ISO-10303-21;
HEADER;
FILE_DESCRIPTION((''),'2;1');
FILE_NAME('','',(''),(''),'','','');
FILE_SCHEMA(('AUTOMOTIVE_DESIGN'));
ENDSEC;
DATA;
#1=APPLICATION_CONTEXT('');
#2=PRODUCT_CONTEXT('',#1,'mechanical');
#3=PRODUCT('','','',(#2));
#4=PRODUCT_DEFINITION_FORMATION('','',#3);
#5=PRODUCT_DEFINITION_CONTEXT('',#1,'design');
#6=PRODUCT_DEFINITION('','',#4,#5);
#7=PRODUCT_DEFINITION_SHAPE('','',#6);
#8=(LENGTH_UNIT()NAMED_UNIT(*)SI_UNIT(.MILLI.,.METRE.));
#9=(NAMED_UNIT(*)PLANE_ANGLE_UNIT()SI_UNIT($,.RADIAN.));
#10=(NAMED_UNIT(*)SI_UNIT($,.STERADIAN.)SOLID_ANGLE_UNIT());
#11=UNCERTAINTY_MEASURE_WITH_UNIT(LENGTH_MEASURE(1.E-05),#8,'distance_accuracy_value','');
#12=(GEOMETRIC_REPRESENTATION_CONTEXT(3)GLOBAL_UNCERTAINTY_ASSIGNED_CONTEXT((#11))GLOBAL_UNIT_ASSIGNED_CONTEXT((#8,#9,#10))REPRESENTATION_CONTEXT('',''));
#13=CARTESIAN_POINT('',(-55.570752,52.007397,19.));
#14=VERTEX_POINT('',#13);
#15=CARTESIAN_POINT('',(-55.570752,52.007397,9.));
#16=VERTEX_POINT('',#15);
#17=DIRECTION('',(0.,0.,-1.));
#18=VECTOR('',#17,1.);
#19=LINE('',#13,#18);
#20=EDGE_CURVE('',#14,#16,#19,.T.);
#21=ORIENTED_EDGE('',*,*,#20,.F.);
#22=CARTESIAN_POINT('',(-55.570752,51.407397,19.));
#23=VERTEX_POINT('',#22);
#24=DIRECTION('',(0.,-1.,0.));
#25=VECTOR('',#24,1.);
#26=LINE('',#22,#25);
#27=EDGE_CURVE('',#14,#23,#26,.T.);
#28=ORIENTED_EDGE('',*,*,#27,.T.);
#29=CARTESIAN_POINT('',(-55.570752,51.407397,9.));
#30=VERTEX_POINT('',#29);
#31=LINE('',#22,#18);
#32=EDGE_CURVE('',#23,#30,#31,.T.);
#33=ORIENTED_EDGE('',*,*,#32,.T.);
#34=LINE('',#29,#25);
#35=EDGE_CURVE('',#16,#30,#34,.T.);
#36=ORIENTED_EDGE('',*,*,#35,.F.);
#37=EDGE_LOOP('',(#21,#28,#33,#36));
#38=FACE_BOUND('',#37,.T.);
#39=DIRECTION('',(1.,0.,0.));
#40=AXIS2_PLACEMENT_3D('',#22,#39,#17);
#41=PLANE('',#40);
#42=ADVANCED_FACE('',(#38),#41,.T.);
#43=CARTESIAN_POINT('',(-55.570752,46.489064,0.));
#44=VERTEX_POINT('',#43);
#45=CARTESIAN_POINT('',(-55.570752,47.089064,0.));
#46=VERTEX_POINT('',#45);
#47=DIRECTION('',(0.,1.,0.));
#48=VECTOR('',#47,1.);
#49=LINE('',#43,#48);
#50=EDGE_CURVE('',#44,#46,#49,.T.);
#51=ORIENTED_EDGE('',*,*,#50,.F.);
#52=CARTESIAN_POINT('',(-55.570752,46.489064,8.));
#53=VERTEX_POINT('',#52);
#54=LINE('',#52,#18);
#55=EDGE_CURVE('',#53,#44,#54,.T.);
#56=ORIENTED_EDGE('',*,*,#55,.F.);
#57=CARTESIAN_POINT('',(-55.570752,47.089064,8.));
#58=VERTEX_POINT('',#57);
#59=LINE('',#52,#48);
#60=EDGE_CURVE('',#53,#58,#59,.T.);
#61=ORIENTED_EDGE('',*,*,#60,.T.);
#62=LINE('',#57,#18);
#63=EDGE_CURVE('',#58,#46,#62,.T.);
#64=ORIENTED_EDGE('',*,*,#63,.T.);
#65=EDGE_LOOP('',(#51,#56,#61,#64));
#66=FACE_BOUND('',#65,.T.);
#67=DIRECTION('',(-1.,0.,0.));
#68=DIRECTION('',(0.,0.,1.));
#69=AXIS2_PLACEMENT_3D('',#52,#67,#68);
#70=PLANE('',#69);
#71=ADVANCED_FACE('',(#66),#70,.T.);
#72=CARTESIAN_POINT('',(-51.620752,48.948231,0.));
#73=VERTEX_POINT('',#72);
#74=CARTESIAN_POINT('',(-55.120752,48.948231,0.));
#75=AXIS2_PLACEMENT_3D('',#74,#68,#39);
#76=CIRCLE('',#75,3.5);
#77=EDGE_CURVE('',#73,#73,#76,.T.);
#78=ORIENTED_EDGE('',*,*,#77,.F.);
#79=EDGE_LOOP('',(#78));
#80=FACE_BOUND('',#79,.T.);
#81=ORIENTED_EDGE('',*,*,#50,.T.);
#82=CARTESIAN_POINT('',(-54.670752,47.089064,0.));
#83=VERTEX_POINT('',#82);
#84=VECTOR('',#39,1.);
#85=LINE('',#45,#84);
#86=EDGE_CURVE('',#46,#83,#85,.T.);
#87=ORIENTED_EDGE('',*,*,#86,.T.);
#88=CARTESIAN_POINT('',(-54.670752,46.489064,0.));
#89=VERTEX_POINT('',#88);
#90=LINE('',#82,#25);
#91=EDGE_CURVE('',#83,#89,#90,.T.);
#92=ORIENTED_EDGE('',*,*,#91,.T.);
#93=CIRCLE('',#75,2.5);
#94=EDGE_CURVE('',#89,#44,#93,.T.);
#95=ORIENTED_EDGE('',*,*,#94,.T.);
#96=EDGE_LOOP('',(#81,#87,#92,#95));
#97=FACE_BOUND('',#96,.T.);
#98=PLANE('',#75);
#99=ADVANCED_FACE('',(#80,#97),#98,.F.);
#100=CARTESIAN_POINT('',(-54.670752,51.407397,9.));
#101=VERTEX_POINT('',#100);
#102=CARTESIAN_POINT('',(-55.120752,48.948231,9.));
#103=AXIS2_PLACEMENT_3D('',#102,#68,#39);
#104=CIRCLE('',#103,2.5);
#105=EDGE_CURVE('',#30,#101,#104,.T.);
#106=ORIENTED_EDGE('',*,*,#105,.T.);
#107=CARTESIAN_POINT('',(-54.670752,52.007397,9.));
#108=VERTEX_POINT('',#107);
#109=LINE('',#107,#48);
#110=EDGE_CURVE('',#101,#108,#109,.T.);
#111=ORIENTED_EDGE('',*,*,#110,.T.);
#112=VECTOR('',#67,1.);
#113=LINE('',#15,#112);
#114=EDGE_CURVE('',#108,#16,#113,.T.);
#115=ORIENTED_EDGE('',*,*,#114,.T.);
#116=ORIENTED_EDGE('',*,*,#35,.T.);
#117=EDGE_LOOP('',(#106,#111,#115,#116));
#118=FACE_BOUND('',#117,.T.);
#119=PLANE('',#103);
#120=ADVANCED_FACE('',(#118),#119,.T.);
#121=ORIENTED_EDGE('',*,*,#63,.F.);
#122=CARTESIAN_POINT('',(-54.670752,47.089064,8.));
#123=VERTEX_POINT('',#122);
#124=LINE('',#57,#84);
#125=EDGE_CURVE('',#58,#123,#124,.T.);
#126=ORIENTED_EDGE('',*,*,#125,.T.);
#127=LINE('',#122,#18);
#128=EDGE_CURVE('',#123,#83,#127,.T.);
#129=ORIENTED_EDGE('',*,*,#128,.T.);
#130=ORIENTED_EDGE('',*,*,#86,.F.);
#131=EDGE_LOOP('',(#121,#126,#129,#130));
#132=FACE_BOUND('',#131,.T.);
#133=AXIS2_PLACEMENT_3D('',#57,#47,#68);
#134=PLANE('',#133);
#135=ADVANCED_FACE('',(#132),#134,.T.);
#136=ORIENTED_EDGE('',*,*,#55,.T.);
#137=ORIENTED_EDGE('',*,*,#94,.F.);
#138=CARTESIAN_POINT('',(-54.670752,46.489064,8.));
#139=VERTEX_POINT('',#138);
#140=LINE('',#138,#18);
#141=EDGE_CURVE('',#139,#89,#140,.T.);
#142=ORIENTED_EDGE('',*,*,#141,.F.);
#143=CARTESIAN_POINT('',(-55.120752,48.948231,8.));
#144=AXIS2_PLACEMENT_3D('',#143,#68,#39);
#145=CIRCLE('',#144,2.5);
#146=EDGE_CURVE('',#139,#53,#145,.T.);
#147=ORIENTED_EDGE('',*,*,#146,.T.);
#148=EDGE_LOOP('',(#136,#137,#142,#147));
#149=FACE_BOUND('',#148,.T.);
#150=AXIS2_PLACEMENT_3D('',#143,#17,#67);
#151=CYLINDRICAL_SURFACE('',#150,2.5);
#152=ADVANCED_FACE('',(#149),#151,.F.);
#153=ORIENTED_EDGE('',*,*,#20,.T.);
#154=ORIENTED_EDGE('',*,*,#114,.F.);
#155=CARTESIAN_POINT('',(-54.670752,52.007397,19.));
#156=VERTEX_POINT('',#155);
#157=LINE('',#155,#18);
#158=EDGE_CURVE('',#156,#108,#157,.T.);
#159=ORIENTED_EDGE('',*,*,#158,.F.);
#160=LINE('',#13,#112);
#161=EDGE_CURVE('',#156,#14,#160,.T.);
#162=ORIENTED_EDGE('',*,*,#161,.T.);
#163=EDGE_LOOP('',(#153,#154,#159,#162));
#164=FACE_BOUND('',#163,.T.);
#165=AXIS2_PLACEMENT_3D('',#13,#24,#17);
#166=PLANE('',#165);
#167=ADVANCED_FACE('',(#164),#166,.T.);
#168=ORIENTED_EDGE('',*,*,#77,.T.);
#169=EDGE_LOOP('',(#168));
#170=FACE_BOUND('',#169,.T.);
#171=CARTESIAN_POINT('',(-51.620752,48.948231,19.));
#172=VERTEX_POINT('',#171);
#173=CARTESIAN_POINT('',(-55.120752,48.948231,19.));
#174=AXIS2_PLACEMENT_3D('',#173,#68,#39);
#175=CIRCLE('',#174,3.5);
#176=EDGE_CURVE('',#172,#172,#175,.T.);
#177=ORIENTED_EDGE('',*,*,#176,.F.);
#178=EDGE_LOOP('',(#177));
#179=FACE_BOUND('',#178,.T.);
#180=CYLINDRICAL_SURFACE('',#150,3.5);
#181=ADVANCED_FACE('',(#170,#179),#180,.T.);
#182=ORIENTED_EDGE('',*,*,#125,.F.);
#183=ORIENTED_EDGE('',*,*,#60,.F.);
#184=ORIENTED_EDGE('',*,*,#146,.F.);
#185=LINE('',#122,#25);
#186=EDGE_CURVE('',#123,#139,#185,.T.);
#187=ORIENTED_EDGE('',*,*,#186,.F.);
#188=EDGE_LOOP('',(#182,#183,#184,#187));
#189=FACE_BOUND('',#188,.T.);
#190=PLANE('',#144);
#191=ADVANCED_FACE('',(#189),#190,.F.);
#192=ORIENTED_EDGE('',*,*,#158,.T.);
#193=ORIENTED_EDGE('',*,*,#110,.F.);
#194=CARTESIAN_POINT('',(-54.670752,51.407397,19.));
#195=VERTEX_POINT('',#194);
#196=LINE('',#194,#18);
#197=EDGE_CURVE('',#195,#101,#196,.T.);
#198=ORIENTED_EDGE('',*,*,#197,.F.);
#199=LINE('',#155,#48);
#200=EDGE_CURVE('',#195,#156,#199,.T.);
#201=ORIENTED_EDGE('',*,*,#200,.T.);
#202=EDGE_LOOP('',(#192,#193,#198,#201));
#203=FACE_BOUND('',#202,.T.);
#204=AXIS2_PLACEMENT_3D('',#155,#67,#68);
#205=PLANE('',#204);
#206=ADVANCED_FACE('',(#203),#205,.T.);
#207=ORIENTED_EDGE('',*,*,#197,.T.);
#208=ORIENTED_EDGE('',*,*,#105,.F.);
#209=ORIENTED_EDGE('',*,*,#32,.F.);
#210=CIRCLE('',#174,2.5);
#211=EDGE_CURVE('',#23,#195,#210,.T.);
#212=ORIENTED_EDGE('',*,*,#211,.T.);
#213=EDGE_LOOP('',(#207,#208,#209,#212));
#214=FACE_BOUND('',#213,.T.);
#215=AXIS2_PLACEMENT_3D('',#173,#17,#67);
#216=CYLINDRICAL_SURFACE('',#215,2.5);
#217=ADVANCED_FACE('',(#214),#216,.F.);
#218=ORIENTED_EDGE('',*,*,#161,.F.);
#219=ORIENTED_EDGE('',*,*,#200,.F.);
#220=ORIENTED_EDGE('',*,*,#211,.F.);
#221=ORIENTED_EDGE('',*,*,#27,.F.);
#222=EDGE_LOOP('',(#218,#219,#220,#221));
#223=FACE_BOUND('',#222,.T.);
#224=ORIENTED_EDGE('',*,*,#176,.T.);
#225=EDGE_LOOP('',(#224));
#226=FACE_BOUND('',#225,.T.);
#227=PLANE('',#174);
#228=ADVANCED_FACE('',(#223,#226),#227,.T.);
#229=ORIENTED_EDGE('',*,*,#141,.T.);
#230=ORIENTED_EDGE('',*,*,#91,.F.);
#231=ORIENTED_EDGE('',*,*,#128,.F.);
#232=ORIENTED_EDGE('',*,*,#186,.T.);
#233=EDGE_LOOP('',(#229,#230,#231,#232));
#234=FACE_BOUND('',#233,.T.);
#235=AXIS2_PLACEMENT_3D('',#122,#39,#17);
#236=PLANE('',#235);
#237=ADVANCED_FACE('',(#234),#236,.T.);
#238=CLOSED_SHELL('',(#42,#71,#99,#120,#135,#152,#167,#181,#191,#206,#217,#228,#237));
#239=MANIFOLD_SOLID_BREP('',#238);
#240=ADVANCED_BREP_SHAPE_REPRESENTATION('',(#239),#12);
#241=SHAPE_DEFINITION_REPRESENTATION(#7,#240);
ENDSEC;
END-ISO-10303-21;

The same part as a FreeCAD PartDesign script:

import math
import FreeCAD as App
import Part
import Sketcher
Q = App.Units.Quantity

doc = App.newDocument("Part")
params = doc.addObject("Spreadsheet::Sheet", "Params")
for row, (alias, value) in enumerate([
    ("sketch1_diameter", "7 mm"),
    ("sketch1_radius", "2.5 mm"),
    ("sketch1_width", "0.9 mm"),
    ("sketch1_height", "0.6 mm"),
    ("pad1_length", "8 mm"),
    ("sketch2_diameter", "7 mm"),
    ("pad2_length", "1 mm"),
    ("sketch3_diameter", "7 mm"),
    ("sketch3_radius", "2.5 mm"),
    ("sketch3_width", "0.9 mm"),
    ("sketch3_height", "0.6 mm"),
    ("pad3_length", "10 mm"),
], start=1):
    params.set(f"A{row}", alias)
    params.set(f"B{row}", "=" + value)
    params.setAlias(f"B{row}", alias)

body = doc.addObject("PartDesign::Body", "Body")

sketch1 = doc.addObject("Sketcher::SketchObject", "Sketch")
body.addObject(sketch1)
sketch1.AttachmentSupport = (doc.XY_Plane, [""])
sketch1.MapMode = "FlatFace"
sketch1.addGeometry([
    Part.Circle(App.Vector(-55.120752, 48.948231, 0), App.Vector(0, 0, 1), 3.5),
    Part.LineSegment(App.Vector(-55.570752, 47.089064, 0), App.Vector(-55.570752, 46.489064, 0)),
    Part.ArcOfCircle(Part.Circle(App.Vector(-55.120752, 48.948231, 0), App.Vector(0, 0, 1), 2.5), math.radians(-79.63024), math.radians(259.63024)),
    Part.LineSegment(App.Vector(-54.670752, 46.489064, 0), App.Vector(-54.670752, 47.089064, 0)),
    Part.LineSegment(App.Vector(-54.670752, 47.089064, 0), App.Vector(-55.570752, 47.089064, 0)),
], False)
sketch1.addConstraint([
    Sketcher.Constraint("Coincident", 1, 2, 2, 2),
    Sketcher.Constraint("Coincident", 2, 1, 3, 1),
    Sketcher.Constraint("Coincident", 3, 2, 4, 1),
    Sketcher.Constraint("Coincident", 4, 2, 1, 1),
    Sketcher.Constraint("Vertical", 1),
    Sketcher.Constraint("Vertical", 3),
    Sketcher.Constraint("Horizontal", 4),
    Sketcher.Constraint("Coincident", 2, 3, 0, 3),
    Sketcher.Constraint("Horizontal", 1, 2, 2, 1),
    Sketcher.Constraint("Diameter", 0, Q("7 mm")),
    Sketcher.Constraint("Radius", 2, Q("2.5 mm")),
    Sketcher.Constraint("DistanceX", 4, 2, 4, 1, Q("0.9 mm")),
    Sketcher.Constraint("DistanceY", 1, 2, 1, 1, Q("0.6 mm")),
    Sketcher.Constraint("DistanceY", -1, 1, 0, 3, Q("48.948231 mm")),
    Sketcher.Constraint("DistanceX", 0, 3, -1, 1, Q("55.120752 mm")),
])
sketch1.setExpression("Constraints[9]", "Params.sketch1_diameter")
sketch1.setExpression("Constraints[10]", "Params.sketch1_radius")
sketch1.setExpression("Constraints[11]", "Params.sketch1_width")
sketch1.setExpression("Constraints[12]", "Params.sketch1_height")
pad1 = doc.addObject("PartDesign::Pad", "Pad")
body.addObject(pad1)
pad1.Profile = sketch1
pad1.setExpression("Length", "Params.pad1_length")

sketch2 = doc.addObject("Sketcher::SketchObject", "Sketch001")
body.addObject(sketch2)
sketch2.AttachmentSupport = (doc.XY_Plane, [""])
sketch2.MapMode = "FlatFace"
sketch2.AttachmentOffset = App.Placement(App.Vector(0, 0, 8), App.Rotation())
sketch2.addGeometry(Part.Circle(App.Vector(-55.120752, 48.948231, 0), App.Vector(0, 0, 1), 3.5), False)
sketch2.addConstraint([
    Sketcher.Constraint("Diameter", 0, Q("7 mm")),
    Sketcher.Constraint("DistanceY", -1, 1, 0, 3, Q("48.948231 mm")),
    Sketcher.Constraint("DistanceX", 0, 3, -1, 1, Q("55.120752 mm")),
])
sketch2.setExpression("Constraints[0]", "Params.sketch2_diameter")
pad2 = doc.addObject("PartDesign::Pad", "Pad001")
body.addObject(pad2)
pad2.Profile = sketch2
pad2.setExpression("Length", "Params.pad2_length")

sketch3 = doc.addObject("Sketcher::SketchObject", "Sketch002")
body.addObject(sketch3)
sketch3.AttachmentSupport = (doc.XY_Plane, [""])
sketch3.MapMode = "FlatFace"
sketch3.AttachmentOffset = App.Placement(App.Vector(0, 0, 9), App.Rotation())
sketch3.addGeometry([
    Part.Circle(App.Vector(-55.120752, 48.948231, 0), App.Vector(0, 0, 1), 3.5),
    Part.ArcOfCircle(Part.Circle(App.Vector(-55.120752, 48.948231, 0), App.Vector(0, 0, 1), 2.5), math.radians(100.36976), math.radians(439.63024)),
    Part.LineSegment(App.Vector(-55.570752, 51.407397, 0), App.Vector(-55.570752, 52.007397, 0)),
    Part.LineSegment(App.Vector(-55.570752, 52.007397, 0), App.Vector(-54.670752, 52.007397, 0)),
    Part.LineSegment(App.Vector(-54.670752, 52.007397, 0), App.Vector(-54.670752, 51.407397, 0)),
], False)
sketch3.addConstraint([
    Sketcher.Constraint("Coincident", 1, 1, 2, 1),
    Sketcher.Constraint("Coincident", 2, 2, 3, 1),
    Sketcher.Constraint("Coincident", 3, 2, 4, 1),
    Sketcher.Constraint("Coincident", 4, 2, 1, 2),
    Sketcher.Constraint("Vertical", 2),
    Sketcher.Constraint("Horizontal", 3),
    Sketcher.Constraint("Vertical", 4),
    Sketcher.Constraint("Coincident", 1, 3, 0, 3),
    Sketcher.Constraint("Horizontal", 1, 1, 4, 2),
    Sketcher.Constraint("Diameter", 0, Q("7 mm")),
    Sketcher.Constraint("Radius", 1, Q("2.5 mm")),
    Sketcher.Constraint("DistanceX", 3, 1, 3, 2, Q("0.9 mm")),
    Sketcher.Constraint("DistanceY", 2, 1, 2, 2, Q("0.6 mm")),
    Sketcher.Constraint("DistanceY", -1, 1, 0, 3, Q("48.948231 mm")),
    Sketcher.Constraint("DistanceX", 0, 3, -1, 1, Q("55.120752 mm")),
])
sketch3.setExpression("Constraints[9]", "Params.sketch3_diameter")
sketch3.setExpression("Constraints[10]", "Params.sketch3_radius")
sketch3.setExpression("Constraints[11]", "Params.sketch3_width")
sketch3.setExpression("Constraints[12]", "Params.sketch3_height")
pad3 = doc.addObject("PartDesign::Pad", "Pad002")
body.addObject(pad3)
pad3.Profile = sketch3
pad3.setExpression("Length", "Params.pad3_length")

doc.recompute()
